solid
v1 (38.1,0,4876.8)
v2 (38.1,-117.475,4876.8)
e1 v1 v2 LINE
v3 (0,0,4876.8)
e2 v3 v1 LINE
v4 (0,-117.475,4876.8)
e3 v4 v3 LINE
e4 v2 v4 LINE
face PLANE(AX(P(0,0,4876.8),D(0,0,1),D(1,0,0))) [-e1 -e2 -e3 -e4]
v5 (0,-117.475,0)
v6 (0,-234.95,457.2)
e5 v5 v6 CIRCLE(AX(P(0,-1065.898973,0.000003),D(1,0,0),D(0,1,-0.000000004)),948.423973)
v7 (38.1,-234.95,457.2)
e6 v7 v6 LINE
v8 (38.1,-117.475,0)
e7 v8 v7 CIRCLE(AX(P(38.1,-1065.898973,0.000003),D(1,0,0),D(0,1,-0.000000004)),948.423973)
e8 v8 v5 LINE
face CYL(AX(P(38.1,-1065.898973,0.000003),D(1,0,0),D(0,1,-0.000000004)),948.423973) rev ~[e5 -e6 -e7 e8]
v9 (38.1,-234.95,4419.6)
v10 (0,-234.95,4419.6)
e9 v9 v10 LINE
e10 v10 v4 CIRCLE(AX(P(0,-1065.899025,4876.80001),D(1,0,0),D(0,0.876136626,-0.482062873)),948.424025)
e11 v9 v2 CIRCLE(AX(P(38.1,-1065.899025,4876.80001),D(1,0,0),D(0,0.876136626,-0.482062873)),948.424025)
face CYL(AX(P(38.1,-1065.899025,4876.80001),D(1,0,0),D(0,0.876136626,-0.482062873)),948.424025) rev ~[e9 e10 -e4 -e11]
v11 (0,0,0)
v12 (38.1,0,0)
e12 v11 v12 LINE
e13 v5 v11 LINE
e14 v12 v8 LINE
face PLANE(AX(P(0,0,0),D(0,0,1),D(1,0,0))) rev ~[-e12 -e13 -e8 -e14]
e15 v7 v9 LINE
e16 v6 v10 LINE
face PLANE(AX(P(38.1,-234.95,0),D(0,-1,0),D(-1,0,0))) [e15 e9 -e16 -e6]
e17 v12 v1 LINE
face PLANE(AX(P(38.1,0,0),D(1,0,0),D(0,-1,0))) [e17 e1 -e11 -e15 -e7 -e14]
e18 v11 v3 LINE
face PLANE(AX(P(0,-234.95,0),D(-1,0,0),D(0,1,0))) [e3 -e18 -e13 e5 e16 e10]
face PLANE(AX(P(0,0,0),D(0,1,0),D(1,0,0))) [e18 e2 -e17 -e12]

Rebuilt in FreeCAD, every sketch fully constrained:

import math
import FreeCAD as App
import Part
import Sketcher
from FreeCAD import Vector
Q = App.Units.Quantity

doc = App.newDocument("Part")
body = doc.addObject("PartDesign::Body", "Body")

sketch1 = body.newObject("Sketcher::SketchObject", "Sketch")
sketch1.AttachmentSupport = (doc.getObject("XY_Plane"), [""])
sketch1.MapMode = "FlatFace"
sketch1.addGeometry([
    Part.LineSegment(Vector(38, 0, 0), Vector(0, 0, 0)),
    Part.LineSegment(Vector(0, 0, 0), Vector(0, -235, 0)),
    Part.LineSegment(Vector(0, -235, 0), Vector(38, -235, 0)),
    Part.LineSegment(Vector(38, -235, 0), Vector(38, 0, 0)),
], False)
sketch1.addConstraint([
    Sketcher.Constraint("Coincident", 0, 2, 1, 1),
    Sketcher.Constraint("Coincident", 1, 2, 2, 1),
    Sketcher.Constraint("Coincident", 2, 2, 3, 1),
    Sketcher.Constraint("Coincident", 3, 2, 0, 1),
    Sketcher.Constraint("Horizontal", 0),
    Sketcher.Constraint("Vertical", 1),
    Sketcher.Constraint("Horizontal", 2),
    Sketcher.Constraint("Vertical", 3),
    Sketcher.Constraint("Coincident", 0, 2, -1, 1),
    Sketcher.Constraint("DistanceX", 0, 2, 0, 1, Q("1.5 in")),
    Sketcher.Constraint("DistanceY", 1, 2, 1, 1, Q("9.25 in")),
])
pad1 = body.newObject("PartDesign::Pad", "Pad")
pad1.Profile = sketch1
pad1.Length = Q("192 in")

sketch2 = body.newObject("Sketcher::SketchObject", "Sketch001")
sketch2.AttachmentSupport = (doc.getObject("YZ_Plane"), [""])
sketch2.MapMode = "FlatFace"
sketch2.AttachmentOffset = App.Placement(Vector(0, 0, 1.5 * 25.4), App.Rotation())
sketch2.addGeometry([
    Part.LineSegment(Vector(-235, 0, 0), Vector(-117, 0, 0)),
    Part.ArcOfCircle(Part.Circle(Vector(-1066, 0, 0), Vector(0, 0, 1), 948), math.radians(0), math.radians(29)),
    Part.LineSegment(Vector(-235, 457, 0), Vector(-235, 0, 0)),
    Part.ArcOfCircle(Part.Circle(Vector(-1066, 4877, 0), Vector(0, 0, 1), 948), math.radians(-29), math.radians(0)),
    Part.LineSegment(Vector(-117, 4877, 0), Vector(-235, 4877, 0)),
    Part.LineSegment(Vector(-235, 4877, 0), Vector(-235, 4420, 0)),
], False)
sketch2.addConstraint([
    Sketcher.Constraint("Coincident", 0, 2, 1, 1),
    Sketcher.Constraint("Coincident", 1, 2, 2, 1),
    Sketcher.Constraint("Coincident", 2, 2, 0, 1),
    Sketcher.Constraint("Coincident", 3, 2, 4, 1),
    Sketcher.Constraint("Coincident", 4, 2, 5, 1),
    Sketcher.Constraint("Coincident", 5, 2, 3, 1),
    Sketcher.Constraint("Horizontal", 0),
    Sketcher.Constraint("Vertical", 2),
    Sketcher.Constraint("Horizontal", 4),
    Sketcher.Constraint("Vertical", 5),
    Sketcher.Constraint("Equal", 1, 3),
    Sketcher.Constraint("PointOnObject", 1, 3, -1),
    Sketcher.Constraint("PointOnObject", 0, 2, -1),
    Sketcher.Constraint("Vertical", 1, 3, 3, 3),
    Sketcher.Constraint("Vertical", 2, 2, 4, 2),
    Sketcher.Constraint("Equal", 2, 5),
    Sketcher.Constraint("DistanceY", 2, 2, 2, 1, Q("18 in")),
    Sketcher.Constraint("DistanceY", -1, 1, 3, 3, Q("192 in")),
    Sketcher.Constraint("DistanceX", 0, 1, 0, 2, Q("4.625 in")),
    Sketcher.Constraint("DistanceX", 2, 2, -1, 1, Q("9.25 in")),
])
pocket1 = body.newObject("PartDesign::Pocket", "Pocket")
pocket1.Profile = sketch2
pocket1.Type = "ThroughAll"
pocket1.Midplane = True

doc.recompute()
